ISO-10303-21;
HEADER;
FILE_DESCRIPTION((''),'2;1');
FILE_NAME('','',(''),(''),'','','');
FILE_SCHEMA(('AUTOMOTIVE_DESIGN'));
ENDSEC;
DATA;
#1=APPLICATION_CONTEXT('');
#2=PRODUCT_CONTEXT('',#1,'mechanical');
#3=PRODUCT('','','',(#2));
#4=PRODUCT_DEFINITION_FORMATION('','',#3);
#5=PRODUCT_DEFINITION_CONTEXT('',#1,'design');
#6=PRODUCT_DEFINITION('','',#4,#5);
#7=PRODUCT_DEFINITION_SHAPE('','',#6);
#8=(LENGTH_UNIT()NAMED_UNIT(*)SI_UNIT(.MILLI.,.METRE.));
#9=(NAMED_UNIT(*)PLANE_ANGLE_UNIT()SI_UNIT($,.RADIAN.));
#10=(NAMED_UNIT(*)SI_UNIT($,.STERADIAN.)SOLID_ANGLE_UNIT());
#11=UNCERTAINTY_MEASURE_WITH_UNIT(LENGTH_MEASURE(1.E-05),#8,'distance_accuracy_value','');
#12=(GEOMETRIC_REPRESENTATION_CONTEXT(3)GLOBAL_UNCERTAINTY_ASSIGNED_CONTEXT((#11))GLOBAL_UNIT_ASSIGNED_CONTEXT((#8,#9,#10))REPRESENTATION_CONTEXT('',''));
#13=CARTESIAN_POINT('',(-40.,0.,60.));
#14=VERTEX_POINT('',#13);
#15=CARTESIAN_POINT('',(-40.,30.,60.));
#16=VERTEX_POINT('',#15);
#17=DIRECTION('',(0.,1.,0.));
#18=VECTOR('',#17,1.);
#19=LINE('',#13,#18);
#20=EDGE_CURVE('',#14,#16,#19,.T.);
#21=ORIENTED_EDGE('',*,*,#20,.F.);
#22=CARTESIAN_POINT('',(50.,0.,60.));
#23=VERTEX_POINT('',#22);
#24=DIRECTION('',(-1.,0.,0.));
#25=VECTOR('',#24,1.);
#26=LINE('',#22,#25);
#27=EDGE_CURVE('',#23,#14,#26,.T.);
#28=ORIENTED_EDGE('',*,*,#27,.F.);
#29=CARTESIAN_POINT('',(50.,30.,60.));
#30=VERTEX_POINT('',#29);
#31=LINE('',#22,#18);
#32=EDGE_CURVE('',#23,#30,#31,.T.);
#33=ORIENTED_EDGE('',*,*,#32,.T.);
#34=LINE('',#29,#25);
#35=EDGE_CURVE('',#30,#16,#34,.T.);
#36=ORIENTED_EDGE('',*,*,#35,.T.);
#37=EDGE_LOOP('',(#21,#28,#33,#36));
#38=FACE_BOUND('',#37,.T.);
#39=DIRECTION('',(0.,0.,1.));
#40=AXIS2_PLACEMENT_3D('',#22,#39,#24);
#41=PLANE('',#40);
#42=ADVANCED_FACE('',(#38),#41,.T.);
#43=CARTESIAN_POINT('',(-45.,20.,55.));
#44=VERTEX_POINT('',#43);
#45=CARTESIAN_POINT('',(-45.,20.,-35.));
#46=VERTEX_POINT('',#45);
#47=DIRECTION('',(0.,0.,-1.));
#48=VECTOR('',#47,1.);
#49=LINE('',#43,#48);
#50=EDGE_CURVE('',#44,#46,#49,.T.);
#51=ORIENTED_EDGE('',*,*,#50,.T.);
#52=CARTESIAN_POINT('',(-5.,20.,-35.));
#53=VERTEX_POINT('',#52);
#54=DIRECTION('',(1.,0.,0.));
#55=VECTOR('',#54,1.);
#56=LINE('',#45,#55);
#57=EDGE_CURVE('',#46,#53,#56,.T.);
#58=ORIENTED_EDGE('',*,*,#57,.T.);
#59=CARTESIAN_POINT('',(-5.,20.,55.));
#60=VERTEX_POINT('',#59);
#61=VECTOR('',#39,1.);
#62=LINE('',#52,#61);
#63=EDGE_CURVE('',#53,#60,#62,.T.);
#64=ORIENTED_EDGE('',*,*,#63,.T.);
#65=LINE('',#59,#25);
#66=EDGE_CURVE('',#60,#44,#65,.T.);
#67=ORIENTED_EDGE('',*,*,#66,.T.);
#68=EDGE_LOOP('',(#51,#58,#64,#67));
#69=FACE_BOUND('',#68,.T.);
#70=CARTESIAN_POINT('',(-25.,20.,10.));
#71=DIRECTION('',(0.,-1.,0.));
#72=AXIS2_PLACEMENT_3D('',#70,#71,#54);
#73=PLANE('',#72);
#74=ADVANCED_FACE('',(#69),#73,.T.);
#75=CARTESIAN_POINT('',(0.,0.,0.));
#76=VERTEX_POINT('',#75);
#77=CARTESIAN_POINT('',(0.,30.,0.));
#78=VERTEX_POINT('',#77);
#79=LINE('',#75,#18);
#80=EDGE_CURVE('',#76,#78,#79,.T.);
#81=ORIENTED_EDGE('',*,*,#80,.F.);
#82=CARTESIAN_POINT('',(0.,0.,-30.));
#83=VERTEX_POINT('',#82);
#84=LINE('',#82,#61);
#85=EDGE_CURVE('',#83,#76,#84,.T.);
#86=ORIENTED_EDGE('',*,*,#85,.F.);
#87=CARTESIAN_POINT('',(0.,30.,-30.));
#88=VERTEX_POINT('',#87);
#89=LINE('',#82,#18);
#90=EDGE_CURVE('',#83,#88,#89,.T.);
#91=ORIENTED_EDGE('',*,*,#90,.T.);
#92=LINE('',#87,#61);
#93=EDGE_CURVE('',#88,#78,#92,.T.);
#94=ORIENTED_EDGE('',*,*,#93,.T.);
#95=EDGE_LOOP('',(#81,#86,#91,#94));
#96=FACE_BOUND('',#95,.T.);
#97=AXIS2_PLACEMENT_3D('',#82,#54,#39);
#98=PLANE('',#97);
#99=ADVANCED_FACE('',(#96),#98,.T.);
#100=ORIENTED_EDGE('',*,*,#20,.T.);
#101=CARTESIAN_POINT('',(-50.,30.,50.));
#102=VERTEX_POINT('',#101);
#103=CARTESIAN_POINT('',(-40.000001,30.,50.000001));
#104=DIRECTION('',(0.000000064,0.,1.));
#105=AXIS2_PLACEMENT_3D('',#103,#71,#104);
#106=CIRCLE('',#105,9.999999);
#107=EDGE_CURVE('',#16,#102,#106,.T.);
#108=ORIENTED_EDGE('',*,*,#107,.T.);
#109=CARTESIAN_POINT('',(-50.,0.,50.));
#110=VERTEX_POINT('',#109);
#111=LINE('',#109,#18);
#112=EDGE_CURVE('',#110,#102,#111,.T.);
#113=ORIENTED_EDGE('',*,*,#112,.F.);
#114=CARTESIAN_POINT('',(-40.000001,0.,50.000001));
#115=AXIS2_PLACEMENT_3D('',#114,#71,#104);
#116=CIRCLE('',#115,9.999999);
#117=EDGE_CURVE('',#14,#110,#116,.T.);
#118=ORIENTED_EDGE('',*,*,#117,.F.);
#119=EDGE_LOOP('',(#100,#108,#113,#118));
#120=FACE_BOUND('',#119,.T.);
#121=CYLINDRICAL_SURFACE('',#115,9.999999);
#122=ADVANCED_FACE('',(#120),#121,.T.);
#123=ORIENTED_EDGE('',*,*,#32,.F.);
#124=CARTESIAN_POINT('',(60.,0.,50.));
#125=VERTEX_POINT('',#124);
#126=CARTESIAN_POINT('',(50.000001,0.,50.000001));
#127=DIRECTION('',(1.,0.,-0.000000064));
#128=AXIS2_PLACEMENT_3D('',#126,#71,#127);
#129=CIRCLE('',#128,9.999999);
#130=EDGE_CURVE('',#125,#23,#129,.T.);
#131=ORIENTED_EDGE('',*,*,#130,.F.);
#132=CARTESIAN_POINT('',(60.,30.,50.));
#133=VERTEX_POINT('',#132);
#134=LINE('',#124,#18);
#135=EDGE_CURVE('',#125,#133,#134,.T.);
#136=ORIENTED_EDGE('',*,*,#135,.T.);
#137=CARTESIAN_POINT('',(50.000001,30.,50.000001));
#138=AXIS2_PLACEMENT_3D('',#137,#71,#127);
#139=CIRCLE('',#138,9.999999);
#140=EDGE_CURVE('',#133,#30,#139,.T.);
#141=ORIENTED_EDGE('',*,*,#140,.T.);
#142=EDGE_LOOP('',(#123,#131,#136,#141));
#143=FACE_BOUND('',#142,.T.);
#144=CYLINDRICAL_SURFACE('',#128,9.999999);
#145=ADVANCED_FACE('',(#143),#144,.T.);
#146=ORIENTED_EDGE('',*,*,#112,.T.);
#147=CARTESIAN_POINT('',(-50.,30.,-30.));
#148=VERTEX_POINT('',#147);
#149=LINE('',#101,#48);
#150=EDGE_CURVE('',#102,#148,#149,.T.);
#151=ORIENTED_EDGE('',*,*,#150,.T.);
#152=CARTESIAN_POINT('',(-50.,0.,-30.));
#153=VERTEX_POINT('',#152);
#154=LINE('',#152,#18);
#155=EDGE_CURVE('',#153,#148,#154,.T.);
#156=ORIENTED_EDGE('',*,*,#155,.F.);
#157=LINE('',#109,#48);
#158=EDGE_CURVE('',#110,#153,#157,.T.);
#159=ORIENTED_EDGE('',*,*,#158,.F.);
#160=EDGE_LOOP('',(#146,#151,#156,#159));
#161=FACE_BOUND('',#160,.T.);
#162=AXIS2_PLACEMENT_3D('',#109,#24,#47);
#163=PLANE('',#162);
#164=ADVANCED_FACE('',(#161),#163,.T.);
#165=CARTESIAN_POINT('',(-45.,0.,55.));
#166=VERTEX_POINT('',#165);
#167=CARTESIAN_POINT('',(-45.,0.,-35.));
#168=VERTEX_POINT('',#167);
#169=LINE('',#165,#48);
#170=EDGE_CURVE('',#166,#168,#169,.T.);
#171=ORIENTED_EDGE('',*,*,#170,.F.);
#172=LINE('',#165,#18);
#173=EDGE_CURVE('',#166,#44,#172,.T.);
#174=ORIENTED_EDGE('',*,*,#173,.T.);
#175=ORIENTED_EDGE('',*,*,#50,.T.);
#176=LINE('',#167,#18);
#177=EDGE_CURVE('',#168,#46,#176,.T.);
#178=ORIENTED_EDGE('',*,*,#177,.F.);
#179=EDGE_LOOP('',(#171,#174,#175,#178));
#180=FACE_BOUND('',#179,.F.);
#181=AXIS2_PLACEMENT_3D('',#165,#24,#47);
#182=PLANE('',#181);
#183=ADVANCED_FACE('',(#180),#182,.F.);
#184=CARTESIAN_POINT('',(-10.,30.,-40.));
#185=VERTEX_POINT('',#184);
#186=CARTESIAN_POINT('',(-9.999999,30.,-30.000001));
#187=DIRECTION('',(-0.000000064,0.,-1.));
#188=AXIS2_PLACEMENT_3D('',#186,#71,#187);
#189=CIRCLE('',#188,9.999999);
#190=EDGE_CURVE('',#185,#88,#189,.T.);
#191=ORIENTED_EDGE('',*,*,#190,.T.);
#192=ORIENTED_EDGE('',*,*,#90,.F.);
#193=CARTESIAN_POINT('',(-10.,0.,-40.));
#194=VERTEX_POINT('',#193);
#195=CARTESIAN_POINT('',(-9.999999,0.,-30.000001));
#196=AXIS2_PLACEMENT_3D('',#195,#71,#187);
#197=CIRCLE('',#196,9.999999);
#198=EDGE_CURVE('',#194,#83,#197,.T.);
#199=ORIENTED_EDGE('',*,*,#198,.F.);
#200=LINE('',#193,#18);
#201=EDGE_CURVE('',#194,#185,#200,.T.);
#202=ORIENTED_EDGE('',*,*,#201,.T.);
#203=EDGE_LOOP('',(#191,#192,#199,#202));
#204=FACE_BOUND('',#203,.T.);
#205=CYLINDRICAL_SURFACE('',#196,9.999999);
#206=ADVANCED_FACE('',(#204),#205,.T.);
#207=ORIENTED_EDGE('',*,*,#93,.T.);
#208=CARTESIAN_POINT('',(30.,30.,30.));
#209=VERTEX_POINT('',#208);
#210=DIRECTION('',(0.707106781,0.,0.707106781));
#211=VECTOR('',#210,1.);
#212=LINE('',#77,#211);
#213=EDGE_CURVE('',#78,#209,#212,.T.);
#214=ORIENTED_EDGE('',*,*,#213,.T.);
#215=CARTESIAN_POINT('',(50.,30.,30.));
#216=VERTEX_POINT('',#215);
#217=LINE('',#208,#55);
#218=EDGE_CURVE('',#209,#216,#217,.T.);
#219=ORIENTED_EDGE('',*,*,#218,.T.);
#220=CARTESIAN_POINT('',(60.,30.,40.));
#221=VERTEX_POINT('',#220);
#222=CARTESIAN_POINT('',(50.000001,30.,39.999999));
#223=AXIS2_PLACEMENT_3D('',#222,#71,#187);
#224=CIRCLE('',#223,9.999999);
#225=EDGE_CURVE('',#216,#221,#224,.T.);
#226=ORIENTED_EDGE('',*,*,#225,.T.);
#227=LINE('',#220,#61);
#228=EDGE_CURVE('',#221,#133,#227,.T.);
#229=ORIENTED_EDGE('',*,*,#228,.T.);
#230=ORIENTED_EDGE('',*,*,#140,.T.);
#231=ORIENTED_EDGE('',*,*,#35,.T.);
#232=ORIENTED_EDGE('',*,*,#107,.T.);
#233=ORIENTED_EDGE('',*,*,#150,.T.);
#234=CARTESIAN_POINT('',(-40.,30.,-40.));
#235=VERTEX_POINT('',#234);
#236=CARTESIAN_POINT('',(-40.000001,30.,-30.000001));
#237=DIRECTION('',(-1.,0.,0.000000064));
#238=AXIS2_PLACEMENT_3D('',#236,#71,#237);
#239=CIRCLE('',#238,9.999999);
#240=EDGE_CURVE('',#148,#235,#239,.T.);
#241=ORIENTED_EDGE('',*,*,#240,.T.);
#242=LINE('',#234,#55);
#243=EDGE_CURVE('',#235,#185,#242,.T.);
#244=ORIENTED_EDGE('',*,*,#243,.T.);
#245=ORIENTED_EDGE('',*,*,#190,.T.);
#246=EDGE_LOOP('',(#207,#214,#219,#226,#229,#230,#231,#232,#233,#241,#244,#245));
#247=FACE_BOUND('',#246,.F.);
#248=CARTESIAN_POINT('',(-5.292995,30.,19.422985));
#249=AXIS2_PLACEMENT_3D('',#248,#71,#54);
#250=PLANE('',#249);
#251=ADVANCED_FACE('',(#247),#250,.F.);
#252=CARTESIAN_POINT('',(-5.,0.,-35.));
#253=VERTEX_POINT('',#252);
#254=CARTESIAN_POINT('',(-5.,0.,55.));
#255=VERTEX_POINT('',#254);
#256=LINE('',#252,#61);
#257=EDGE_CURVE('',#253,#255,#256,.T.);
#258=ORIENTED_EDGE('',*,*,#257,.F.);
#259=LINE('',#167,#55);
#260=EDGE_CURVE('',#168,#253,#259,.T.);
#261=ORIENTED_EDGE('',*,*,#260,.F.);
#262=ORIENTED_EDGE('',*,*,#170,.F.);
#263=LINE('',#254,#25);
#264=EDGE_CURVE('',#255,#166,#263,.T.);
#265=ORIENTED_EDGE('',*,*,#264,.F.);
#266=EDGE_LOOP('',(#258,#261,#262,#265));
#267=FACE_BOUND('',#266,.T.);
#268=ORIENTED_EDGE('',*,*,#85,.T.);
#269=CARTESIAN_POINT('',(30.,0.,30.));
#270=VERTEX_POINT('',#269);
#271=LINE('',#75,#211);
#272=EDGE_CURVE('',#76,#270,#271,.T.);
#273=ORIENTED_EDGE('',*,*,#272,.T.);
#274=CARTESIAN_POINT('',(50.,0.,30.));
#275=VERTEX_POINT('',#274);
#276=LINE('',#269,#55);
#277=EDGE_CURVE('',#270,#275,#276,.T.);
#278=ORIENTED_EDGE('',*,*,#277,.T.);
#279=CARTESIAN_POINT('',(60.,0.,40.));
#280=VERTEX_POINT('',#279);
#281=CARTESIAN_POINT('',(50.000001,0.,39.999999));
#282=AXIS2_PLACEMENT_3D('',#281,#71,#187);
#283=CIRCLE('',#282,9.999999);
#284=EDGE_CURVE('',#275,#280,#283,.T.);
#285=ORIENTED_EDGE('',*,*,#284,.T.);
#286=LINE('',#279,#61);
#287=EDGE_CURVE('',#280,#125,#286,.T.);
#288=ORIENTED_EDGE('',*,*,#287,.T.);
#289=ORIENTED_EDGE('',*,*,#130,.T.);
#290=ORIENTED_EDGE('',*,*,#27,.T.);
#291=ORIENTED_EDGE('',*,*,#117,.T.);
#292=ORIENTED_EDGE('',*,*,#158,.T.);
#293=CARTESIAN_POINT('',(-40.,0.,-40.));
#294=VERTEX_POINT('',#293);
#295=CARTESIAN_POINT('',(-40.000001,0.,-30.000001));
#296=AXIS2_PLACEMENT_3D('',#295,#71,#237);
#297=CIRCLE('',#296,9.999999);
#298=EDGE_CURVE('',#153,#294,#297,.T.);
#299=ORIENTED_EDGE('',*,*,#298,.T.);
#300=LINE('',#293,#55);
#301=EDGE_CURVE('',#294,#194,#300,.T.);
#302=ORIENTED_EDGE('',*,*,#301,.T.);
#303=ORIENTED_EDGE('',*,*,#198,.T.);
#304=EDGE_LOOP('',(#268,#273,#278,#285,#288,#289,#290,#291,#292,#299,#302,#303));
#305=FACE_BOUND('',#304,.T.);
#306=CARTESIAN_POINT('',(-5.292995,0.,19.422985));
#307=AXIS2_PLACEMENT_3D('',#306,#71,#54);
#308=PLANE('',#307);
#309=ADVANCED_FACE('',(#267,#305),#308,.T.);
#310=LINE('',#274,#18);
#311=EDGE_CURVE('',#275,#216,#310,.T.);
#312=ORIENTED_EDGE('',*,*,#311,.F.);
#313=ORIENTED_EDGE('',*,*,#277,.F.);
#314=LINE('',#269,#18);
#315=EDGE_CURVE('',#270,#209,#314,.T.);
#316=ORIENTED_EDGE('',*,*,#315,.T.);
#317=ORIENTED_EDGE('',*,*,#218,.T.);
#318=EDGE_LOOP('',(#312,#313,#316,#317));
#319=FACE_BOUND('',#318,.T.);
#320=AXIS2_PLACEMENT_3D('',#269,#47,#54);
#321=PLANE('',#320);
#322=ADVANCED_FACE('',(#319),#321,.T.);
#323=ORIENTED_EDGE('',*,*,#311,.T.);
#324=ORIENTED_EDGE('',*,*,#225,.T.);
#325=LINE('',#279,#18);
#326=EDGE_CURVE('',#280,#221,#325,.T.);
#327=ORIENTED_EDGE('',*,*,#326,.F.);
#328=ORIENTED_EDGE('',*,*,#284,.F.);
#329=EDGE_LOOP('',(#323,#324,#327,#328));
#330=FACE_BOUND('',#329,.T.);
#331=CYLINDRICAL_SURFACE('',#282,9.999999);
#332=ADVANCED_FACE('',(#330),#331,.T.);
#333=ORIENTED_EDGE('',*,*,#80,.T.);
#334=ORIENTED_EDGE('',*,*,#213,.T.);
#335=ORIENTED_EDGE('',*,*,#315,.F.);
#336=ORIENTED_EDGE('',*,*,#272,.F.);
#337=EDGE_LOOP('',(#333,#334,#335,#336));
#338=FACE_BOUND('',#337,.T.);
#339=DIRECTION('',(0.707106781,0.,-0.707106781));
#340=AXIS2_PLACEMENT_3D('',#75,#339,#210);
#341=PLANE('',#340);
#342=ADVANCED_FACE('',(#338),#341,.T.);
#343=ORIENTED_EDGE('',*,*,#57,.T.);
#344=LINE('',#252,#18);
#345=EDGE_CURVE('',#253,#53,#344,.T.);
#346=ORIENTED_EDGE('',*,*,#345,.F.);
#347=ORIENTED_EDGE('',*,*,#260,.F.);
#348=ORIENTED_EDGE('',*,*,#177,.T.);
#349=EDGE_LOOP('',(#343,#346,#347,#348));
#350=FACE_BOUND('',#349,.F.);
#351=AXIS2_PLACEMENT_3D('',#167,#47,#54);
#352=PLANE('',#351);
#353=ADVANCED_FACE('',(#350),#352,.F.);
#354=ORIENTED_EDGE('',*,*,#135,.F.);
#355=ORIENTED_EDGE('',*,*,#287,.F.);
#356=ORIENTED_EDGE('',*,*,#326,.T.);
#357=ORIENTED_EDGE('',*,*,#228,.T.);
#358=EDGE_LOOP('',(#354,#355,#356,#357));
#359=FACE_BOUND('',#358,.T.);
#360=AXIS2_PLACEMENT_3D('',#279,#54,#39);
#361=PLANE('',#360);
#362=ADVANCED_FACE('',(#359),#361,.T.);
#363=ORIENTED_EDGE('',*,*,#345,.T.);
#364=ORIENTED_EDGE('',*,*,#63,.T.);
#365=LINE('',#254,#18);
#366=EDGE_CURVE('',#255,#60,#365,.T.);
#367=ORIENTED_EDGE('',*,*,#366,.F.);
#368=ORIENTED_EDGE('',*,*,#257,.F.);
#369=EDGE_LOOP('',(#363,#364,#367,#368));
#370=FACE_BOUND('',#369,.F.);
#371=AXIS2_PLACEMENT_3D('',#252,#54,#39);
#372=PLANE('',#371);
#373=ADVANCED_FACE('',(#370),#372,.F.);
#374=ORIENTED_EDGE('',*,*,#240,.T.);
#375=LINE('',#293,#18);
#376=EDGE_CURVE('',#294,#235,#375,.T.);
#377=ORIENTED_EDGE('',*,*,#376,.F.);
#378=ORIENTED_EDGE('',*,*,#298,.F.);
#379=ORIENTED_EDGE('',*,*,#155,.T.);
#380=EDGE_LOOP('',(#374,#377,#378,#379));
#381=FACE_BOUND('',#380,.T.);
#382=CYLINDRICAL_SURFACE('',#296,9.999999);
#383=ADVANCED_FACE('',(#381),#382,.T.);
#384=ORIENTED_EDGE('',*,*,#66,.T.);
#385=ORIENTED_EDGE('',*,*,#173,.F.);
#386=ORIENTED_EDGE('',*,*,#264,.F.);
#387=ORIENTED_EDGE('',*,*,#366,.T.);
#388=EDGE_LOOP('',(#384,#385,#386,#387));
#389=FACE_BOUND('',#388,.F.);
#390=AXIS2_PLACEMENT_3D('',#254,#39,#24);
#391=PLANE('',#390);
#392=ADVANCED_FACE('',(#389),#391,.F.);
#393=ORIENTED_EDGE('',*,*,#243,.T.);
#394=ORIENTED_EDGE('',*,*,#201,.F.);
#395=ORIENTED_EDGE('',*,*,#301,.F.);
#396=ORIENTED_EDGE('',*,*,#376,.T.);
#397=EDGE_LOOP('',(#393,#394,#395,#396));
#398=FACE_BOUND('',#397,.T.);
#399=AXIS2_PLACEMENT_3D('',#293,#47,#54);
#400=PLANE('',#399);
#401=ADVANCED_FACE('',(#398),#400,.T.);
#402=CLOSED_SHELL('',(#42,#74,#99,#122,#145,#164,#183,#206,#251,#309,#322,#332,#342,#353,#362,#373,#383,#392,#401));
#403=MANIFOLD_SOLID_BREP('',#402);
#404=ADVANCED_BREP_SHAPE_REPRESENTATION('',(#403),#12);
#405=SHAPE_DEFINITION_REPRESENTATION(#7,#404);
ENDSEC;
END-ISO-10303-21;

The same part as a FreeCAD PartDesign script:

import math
import FreeCAD as App
import Part
import Sketcher
from FreeCAD import Vector


def add_polygon(sketch, points):
    """Adds a closed chain of lines whose ends are joined by coincident constraints."""
    first, n = sketch.GeometryCount, len(points)
    for a, b in zip(points, points[1:] + points[:1]):
        sketch.addGeometry(Part.LineSegment(App.Vector(*a, 0), App.Vector(*b, 0)), False)
    for i in range(n):
        sketch.addConstraint(Sketcher.Constraint("Coincident", first + i, 2, first + (i + 1) % n, 1))

doc = App.newDocument("Part")
body = doc.addObject("PartDesign::Body", "Body")

# Sketch on XZ plane
sketch1 = body.newObject("Sketcher::SketchObject", "Sketch")
sketch1.AttachmentSupport = (doc.getObject("XZ_Plane"), [""])
sketch1.MapMode = "FlatFace"
sketch1.addGeometry(Part.LineSegment(Vector(0, -30, 0), Vector(0, 0, 0)), False)
sketch1.addGeometry(Part.LineSegment(Vector(0, 0, 0), Vector(30, 30, 0)), False)
sketch1.addGeometry(Part.LineSegment(Vector(30, 30, 0), Vector(50, 30, 0)), False)
sketch1.addGeometry(Part.ArcOfCircle(Part.Circle(Vector(50, 40, 0), Vector(0, 0, 1), 10), math.radians(-90), math.radians(0)), False)
sketch1.addGeometry(Part.LineSegment(Vector(60, 40, 0), Vector(60, 50, 0)), False)
sketch1.addGeometry(Part.ArcOfCircle(Part.Circle(Vector(50, 50, 0), Vector(0, 0, 1), 10), math.radians(0), math.radians(90)), False)
sketch1.addGeometry(Part.LineSegment(Vector(50, 60, 0), Vector(-40, 60, 0)), False)
sketch1.addGeometry(Part.ArcOfCircle(Part.Circle(Vector(-40, 50, 0), Vector(0, 0, 1), 10), math.radians(90), math.radians(180)), False)
sketch1.addGeometry(Part.LineSegment(Vector(-50, 50, 0), Vector(-50, -30, 0)), False)
sketch1.addGeometry(Part.ArcOfCircle(Part.Circle(Vector(-40, -30, 0), Vector(0, 0, 1), 10), math.radians(180), math.radians(270)), False)
sketch1.addGeometry(Part.LineSegment(Vector(-40, -40, 0), Vector(-10, -40, 0)), False)
sketch1.addGeometry(Part.ArcOfCircle(Part.Circle(Vector(-10, -30, 0), Vector(0, 0, 1), 10), math.radians(-90), math.radians(0)), False)
sketch1.addConstraint(Sketcher.Constraint("Coincident", 0, 2, 1, 1))
sketch1.addConstraint(Sketcher.Constraint("Coincident", 1, 2, 2, 1))
sketch1.addConstraint(Sketcher.Constraint("Tangent", 2, 2, 3, 1))
sketch1.addConstraint(Sketcher.Constraint("Tangent", 3, 2, 4, 1))
sketch1.addConstraint(Sketcher.Constraint("Tangent", 4, 2, 5, 1))
sketch1.addConstraint(Sketcher.Constraint("Tangent", 5, 2, 6, 1))
sketch1.addConstraint(Sketcher.Constraint("Tangent", 6, 2, 7, 1))
sketch1.addConstraint(Sketcher.Constraint("Tangent", 7, 2, 8, 1))
sketch1.addConstraint(Sketcher.Constraint("Tangent", 8, 2, 9, 1))
sketch1.addConstraint(Sketcher.Constraint("Tangent", 9, 2, 10, 1))
sketch1.addConstraint(Sketcher.Constraint("Tangent", 10, 2, 11, 1))
sketch1.addConstraint(Sketcher.Constraint("Tangent", 11, 2, 0, 1))
sketch1.addConstraint(Sketcher.Constraint("Vertical", 0))
sketch1.addConstraint(Sketcher.Constraint("Horizontal", 2))
sketch1.addConstraint(Sketcher.Constraint("Vertical", 4))
sketch1.addConstraint(Sketcher.Constraint("Horizontal", 6))
sketch1.addConstraint(Sketcher.Constraint("Vertical", 8))
sketch1.addConstraint(Sketcher.Constraint("Horizontal", 10))
sketch1.addConstraint(Sketcher.Constraint("Coincident", 0, 2, -1, 1))
sketch1.addConstraint(Sketcher.Constraint("Equal", 3, 5))
sketch1.addConstraint(Sketcher.Constraint("Equal", 5, 7))
sketch1.addConstraint(Sketcher.Constraint("Equal", 7, 9))
sketch1.addConstraint(Sketcher.Constraint("Equal", 9, 11))
sketch1.addConstraint(Sketcher.Constraint("Symmetric", 2, 2, 8, 2, -1, 1))
sketch1.addConstraint(Sketcher.Constraint("Equal", 10, 0))
sketch1.addConstraint(Sketcher.Constraint("Radius", 3, 9.999999))
sketch1.addConstraint(Sketcher.Constraint("DistanceX", 2, 1, 2, 2, 20.0))
sketch1.addConstraint(Sketcher.Constraint("DistanceX", 6, 2, 6, 1, 90.0))
sketch1.addConstraint(Sketcher.Constraint("DistanceY", 4, 1, 4, 2, 10.0))
pad1 = body.newObject("PartDesign::Pad", "Pad")
pad1.Profile = sketch1
pad1.Length = 30
pad1.Reversed = True

# Sketch on XZ plane
sketch2 = body.newObject("Sketcher::SketchObject", "Sketch001")
sketch2.AttachmentSupport = (doc.getObject("XZ_Plane"), [""])
sketch2.MapMode = "FlatFace"
add_polygon(sketch2, [(-45, 55), (-45, -35), (-5, -35), (-5, 55)])  # lines 0-3
sketch2.addConstraint(Sketcher.Constraint("Vertical", 0))
sketch2.addConstraint(Sketcher.Constraint("Horizontal", 1))
sketch2.addConstraint(Sketcher.Constraint("Vertical", 2))
sketch2.addConstraint(Sketcher.Constraint("Horizontal", 3))
sketch2.addConstraint(Sketcher.Constraint("DistanceX", 1, 1, 1, 2, 40.0))
sketch2.addConstraint(Sketcher.Constraint("DistanceY", 0, 2, 0, 1, 90.0))
sketch2.addConstraint(Sketcher.Constraint("DistanceX", 0, 2, -1, 1, 45.0))
sketch2.addConstraint(Sketcher.Constraint("DistanceY", 0, 2, -1, 1, 35.0))
pocket1 = body.newObject("PartDesign::Pocket", "Pocket")
pocket1.Profile = sketch2
pocket1.Length = 20

doc.recompute()
